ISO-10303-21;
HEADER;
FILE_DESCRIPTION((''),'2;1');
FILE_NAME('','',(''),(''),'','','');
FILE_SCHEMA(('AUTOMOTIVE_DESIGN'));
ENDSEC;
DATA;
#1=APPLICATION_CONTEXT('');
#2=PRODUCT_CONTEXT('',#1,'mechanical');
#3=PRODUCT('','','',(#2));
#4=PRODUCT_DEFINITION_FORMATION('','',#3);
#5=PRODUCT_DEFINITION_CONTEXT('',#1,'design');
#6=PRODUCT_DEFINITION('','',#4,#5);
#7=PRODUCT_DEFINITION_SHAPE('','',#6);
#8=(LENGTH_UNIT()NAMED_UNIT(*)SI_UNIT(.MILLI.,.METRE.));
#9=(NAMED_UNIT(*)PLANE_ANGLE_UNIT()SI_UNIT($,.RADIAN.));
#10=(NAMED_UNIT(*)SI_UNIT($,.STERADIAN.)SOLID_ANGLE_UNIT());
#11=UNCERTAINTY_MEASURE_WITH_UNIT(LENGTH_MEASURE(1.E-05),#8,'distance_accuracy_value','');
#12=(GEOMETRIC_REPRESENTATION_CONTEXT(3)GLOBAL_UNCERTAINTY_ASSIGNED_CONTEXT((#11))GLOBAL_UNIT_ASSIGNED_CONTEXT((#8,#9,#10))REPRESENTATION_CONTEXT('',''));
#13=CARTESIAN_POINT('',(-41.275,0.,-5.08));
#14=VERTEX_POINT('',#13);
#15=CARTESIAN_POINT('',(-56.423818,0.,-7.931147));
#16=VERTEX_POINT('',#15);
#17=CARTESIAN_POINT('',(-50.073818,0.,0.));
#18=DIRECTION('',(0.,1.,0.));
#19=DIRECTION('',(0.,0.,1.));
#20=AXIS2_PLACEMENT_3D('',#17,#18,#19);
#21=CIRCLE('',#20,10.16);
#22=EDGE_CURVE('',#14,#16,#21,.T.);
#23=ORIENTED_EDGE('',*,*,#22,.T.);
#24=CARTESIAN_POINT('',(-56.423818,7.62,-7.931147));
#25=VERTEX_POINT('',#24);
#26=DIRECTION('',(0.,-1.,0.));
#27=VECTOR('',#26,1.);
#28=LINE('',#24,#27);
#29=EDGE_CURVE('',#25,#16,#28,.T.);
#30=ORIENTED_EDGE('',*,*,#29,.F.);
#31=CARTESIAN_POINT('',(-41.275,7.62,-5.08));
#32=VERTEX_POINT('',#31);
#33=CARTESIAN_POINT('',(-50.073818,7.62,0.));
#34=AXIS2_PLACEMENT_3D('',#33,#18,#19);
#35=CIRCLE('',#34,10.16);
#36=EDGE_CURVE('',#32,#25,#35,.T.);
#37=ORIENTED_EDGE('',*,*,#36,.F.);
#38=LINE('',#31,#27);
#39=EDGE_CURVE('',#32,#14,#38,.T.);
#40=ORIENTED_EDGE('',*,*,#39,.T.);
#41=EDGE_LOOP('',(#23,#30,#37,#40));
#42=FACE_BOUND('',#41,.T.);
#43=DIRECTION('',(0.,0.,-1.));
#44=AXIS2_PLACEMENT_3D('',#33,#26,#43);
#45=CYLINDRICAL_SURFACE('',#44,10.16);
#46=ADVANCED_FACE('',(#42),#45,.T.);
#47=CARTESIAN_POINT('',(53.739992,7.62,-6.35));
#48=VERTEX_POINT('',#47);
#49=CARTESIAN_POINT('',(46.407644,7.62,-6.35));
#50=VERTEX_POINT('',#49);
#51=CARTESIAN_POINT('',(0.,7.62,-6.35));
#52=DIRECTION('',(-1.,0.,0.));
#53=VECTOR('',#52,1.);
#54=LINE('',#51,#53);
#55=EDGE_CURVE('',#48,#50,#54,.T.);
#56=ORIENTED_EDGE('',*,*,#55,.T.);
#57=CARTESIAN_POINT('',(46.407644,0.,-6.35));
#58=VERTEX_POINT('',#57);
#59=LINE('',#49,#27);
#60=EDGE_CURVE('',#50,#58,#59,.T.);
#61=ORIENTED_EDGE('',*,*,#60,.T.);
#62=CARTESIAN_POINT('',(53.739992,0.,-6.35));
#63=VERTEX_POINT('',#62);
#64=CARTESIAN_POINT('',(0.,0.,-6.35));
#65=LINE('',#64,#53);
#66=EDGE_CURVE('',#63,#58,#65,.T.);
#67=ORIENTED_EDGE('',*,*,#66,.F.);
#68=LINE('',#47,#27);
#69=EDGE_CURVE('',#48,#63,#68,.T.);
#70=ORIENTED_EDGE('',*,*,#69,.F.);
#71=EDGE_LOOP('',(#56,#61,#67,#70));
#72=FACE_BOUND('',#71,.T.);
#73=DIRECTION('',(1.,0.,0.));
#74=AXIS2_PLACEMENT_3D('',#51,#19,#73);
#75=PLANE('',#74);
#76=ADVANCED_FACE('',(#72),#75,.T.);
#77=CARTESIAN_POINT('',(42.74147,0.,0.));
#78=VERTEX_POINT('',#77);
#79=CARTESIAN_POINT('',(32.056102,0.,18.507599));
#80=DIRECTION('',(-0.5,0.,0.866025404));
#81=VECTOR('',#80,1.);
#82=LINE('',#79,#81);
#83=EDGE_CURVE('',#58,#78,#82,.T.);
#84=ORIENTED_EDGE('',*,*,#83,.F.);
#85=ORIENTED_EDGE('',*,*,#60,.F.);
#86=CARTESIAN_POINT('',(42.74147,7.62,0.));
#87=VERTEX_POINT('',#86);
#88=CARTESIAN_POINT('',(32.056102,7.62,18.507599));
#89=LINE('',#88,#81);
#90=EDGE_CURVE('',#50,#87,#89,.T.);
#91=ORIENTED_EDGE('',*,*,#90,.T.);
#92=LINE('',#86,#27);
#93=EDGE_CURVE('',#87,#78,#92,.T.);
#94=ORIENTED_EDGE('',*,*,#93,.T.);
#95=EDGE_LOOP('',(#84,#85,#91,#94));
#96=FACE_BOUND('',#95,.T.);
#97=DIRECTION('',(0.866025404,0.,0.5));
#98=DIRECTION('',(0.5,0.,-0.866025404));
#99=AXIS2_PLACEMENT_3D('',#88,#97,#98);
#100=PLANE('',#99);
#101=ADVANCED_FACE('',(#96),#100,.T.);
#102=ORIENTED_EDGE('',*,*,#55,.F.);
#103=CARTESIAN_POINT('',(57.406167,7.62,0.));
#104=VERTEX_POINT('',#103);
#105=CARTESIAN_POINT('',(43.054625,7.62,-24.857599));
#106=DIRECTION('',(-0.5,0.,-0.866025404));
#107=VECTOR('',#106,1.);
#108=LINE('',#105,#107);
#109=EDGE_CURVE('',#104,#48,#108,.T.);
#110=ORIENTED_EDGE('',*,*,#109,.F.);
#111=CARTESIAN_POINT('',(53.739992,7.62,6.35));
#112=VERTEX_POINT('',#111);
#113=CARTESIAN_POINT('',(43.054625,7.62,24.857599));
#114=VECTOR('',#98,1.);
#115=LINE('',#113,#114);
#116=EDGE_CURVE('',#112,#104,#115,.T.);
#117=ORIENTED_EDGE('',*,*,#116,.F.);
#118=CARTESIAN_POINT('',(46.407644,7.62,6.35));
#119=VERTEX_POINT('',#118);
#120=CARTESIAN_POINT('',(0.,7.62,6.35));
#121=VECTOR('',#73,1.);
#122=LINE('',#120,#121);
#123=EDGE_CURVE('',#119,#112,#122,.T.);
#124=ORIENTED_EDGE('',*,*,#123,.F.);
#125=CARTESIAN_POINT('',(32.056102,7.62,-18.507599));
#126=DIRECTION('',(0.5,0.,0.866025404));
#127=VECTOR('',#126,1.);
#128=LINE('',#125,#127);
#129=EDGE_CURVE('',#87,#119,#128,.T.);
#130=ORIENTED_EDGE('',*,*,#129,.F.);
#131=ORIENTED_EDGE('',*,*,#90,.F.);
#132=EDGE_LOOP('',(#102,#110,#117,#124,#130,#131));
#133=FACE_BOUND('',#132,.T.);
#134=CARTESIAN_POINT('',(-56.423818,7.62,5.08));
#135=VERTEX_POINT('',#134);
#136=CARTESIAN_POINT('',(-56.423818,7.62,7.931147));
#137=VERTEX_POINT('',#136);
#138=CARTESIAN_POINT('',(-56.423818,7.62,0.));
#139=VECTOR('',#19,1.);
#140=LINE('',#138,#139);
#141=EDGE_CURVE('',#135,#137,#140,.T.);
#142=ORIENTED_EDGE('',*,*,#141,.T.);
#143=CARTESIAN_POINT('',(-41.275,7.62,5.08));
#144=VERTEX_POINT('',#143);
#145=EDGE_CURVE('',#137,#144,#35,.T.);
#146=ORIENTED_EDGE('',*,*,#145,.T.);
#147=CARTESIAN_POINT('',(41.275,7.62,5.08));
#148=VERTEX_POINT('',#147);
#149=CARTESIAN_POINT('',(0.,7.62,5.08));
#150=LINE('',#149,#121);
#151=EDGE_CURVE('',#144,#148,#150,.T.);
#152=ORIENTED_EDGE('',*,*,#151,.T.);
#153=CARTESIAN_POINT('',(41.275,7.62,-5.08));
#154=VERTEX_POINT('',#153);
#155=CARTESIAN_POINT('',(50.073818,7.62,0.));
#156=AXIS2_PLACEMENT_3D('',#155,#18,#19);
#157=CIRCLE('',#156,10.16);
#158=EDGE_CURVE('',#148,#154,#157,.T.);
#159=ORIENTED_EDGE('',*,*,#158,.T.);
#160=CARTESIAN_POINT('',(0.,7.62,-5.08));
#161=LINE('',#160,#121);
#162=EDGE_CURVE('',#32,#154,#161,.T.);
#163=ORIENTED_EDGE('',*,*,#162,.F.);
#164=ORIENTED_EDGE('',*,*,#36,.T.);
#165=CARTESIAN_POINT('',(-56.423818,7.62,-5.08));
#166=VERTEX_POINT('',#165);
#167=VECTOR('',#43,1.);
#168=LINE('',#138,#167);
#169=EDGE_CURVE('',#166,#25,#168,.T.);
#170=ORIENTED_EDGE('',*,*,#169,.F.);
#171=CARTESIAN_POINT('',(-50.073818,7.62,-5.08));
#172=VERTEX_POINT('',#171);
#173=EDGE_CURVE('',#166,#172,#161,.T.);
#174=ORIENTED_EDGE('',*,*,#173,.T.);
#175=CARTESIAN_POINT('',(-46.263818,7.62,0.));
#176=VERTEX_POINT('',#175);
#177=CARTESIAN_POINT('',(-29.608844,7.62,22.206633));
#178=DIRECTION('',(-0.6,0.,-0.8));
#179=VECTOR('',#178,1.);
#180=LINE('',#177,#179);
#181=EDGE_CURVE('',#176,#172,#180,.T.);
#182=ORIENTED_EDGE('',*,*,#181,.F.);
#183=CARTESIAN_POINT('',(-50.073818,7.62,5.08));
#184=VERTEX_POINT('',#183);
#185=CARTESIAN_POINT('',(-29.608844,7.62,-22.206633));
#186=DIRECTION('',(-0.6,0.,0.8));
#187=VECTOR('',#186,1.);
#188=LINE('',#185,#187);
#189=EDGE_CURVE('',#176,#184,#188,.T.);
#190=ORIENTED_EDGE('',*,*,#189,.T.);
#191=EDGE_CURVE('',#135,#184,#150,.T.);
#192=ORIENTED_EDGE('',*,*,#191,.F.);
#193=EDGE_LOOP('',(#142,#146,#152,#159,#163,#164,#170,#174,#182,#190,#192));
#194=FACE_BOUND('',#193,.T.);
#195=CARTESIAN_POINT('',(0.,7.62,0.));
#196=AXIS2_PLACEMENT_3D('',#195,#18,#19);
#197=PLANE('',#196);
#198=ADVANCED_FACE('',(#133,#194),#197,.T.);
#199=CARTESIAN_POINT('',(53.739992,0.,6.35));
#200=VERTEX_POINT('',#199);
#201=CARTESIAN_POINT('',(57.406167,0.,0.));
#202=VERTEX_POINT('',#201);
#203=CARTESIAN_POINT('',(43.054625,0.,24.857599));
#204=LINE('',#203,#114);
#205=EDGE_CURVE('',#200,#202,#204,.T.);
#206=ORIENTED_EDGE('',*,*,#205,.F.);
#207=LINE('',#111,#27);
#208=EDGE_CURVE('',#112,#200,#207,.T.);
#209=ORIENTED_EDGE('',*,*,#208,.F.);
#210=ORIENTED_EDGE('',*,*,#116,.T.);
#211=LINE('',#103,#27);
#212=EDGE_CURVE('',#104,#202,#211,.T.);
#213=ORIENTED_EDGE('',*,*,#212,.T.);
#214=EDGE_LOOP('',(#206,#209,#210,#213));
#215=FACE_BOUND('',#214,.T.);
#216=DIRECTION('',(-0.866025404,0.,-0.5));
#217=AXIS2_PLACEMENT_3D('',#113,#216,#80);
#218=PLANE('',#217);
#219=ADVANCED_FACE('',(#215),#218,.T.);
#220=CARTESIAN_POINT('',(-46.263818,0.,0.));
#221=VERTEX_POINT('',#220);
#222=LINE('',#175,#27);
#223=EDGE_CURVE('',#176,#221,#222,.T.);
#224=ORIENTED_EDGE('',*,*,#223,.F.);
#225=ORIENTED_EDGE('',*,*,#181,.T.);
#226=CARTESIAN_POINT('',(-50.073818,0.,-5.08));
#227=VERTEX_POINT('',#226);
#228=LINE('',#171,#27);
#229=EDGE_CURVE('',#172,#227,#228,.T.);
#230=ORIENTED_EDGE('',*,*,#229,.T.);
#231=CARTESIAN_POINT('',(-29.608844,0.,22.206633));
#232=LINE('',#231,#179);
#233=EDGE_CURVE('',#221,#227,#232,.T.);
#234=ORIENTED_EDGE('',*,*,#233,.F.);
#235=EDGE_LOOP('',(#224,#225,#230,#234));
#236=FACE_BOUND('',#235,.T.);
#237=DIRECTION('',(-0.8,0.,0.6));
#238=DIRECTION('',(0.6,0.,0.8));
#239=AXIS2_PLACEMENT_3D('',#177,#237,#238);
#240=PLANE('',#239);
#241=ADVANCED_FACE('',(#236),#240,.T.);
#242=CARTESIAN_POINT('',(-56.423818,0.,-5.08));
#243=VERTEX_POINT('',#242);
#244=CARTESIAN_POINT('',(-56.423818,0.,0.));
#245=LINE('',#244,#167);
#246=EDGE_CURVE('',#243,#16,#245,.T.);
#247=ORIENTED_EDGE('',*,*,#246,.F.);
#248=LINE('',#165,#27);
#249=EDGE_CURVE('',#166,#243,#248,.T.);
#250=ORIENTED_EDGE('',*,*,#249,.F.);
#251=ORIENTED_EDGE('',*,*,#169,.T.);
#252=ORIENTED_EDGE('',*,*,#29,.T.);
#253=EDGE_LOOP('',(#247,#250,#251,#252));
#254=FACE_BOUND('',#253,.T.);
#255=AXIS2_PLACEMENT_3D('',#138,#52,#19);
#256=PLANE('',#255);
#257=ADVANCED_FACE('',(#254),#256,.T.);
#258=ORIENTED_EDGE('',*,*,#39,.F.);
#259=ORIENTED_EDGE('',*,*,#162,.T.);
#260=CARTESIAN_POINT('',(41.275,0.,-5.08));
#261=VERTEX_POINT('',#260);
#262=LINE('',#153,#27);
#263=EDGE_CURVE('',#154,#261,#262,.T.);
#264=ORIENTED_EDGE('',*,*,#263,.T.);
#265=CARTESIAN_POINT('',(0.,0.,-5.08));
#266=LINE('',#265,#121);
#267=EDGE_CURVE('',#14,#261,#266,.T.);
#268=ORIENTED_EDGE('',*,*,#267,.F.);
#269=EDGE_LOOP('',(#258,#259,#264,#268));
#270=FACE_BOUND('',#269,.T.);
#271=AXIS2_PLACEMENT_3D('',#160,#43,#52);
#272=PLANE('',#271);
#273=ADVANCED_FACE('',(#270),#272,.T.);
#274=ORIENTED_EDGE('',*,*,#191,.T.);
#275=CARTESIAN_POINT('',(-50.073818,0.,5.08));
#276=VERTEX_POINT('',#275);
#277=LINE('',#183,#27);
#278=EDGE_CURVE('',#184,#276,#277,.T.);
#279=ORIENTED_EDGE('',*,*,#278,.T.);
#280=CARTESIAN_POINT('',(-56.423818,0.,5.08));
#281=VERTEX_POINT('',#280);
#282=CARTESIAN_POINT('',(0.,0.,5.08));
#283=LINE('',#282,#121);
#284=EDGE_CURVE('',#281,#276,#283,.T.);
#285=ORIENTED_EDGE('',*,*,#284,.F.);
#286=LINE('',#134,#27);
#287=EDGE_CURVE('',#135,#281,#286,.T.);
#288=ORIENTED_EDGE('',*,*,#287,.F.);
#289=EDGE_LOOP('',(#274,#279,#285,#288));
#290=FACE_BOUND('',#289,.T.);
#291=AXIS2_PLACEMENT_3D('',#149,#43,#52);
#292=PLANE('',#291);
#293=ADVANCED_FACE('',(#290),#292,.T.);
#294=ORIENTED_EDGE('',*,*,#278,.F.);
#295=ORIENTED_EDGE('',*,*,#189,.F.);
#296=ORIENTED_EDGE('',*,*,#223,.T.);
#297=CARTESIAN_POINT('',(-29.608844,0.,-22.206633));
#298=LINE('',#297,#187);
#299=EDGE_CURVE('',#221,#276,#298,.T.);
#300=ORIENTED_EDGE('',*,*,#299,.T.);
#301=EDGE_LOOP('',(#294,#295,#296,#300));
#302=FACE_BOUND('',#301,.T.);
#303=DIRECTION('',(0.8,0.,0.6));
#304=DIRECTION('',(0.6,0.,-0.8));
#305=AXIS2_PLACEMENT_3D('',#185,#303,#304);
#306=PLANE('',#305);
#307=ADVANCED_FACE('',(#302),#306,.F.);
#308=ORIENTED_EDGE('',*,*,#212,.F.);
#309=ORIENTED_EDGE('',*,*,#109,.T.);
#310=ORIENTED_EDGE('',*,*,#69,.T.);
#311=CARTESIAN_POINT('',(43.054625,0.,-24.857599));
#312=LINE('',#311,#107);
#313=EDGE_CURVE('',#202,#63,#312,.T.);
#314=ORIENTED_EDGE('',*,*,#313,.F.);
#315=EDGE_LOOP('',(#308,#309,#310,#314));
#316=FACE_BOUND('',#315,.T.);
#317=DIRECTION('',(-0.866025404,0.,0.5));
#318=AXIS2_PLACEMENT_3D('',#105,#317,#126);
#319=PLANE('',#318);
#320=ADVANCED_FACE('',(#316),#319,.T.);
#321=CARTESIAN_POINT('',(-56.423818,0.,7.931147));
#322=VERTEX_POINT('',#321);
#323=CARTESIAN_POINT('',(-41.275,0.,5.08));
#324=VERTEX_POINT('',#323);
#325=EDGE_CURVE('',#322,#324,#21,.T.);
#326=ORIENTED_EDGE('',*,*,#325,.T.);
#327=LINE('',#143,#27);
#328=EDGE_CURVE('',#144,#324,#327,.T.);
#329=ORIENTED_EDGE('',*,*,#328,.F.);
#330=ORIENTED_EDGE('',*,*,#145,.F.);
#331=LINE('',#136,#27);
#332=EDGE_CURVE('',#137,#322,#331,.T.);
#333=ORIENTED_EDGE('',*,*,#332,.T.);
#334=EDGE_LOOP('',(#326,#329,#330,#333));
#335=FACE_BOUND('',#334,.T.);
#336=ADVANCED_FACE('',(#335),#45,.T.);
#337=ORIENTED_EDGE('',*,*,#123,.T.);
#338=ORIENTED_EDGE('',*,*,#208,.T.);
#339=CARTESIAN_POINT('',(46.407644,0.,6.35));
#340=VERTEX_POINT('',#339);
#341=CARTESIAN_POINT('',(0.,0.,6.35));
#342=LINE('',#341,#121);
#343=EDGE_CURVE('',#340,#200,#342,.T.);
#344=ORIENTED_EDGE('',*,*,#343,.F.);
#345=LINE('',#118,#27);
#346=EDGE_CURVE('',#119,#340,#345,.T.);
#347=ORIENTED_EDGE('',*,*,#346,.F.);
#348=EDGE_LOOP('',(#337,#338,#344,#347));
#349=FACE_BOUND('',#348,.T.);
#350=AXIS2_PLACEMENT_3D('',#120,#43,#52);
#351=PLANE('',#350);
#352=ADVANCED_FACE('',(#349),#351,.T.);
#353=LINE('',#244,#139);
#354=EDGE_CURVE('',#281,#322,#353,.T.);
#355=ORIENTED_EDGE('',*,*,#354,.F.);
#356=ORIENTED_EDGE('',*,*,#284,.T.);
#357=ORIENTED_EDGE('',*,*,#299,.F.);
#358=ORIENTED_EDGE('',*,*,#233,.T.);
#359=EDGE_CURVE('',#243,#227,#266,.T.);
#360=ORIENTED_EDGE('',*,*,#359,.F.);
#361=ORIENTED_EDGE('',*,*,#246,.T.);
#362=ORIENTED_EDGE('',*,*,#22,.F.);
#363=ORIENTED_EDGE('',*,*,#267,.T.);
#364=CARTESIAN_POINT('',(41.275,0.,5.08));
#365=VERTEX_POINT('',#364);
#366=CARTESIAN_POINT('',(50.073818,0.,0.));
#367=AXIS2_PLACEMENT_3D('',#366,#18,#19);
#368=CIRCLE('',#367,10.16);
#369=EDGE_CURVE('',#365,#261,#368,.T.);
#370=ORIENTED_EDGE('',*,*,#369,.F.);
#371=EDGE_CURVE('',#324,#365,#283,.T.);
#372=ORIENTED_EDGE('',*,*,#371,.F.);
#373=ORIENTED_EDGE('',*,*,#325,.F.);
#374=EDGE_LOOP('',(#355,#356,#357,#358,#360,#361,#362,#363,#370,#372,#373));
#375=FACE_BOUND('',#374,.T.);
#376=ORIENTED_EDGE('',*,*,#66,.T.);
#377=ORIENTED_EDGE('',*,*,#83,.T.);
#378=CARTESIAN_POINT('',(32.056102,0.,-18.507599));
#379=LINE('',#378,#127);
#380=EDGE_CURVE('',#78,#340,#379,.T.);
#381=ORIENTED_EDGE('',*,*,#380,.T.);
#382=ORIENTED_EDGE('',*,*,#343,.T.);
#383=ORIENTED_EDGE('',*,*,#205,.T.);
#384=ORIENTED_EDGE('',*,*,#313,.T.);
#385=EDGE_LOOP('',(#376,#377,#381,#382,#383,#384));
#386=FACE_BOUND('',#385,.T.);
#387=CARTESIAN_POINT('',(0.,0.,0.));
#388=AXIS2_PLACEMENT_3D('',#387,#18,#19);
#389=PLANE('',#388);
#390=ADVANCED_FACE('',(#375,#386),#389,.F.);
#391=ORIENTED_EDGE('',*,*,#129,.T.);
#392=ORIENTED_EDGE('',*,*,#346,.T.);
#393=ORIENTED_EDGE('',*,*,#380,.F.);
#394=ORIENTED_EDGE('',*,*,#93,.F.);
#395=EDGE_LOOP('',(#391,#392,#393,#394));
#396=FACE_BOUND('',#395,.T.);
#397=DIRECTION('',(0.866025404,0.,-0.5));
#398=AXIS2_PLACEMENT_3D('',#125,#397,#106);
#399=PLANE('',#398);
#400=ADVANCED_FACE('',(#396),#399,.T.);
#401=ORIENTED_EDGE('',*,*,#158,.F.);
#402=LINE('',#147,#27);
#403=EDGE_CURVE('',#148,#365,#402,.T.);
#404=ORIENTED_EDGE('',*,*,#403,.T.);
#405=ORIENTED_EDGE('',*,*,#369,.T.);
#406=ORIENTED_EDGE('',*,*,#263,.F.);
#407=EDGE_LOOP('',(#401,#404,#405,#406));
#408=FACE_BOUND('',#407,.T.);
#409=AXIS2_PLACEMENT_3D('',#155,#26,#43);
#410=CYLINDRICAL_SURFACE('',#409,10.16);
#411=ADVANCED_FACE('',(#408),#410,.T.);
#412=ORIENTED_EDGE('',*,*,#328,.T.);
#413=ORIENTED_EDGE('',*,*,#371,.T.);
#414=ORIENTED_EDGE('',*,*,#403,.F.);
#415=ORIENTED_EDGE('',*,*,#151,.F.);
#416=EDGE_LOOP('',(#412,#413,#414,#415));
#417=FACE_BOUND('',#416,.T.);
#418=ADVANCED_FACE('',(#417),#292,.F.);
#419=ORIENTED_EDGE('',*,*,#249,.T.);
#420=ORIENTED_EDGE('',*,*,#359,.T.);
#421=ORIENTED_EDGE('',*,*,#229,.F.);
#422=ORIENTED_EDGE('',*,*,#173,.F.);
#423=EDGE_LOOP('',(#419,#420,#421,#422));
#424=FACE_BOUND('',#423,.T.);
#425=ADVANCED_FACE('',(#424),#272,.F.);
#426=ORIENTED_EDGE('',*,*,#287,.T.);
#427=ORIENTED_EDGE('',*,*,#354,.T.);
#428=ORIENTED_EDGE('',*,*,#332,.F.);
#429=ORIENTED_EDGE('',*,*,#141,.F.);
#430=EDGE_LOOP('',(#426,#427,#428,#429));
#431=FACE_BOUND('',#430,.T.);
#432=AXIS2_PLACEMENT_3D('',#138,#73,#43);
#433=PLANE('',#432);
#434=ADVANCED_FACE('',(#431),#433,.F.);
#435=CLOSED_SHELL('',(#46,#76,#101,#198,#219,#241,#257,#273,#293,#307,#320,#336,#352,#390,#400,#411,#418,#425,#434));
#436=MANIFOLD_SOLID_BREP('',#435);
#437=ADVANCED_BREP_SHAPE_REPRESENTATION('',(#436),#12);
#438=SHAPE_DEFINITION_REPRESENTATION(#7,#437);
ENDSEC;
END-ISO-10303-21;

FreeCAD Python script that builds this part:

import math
import FreeCAD as App
import Part
import Sketcher
Q = App.Units.Quantity


def add_polygon(sketch, points):
    """Adds a closed chain of lines whose ends are joined by coincident constraints."""
    first, n = sketch.GeometryCount, len(points)
    for a, b in zip(points, points[1:] + points[:1]):
        sketch.addGeometry(Part.LineSegment(App.Vector(*a, 0), App.Vector(*b, 0)), False)
    for i in range(n):
        sketch.addConstraint(Sketcher.Constraint("Coincident", first + i, 2, first + (i + 1) % n, 1))

doc = App.newDocument("Part")
body = doc.addObject("PartDesign::Body", "Body")

# Sketch on XZ plane
sketch1 = body.newObject("Sketcher::SketchObject", "Sketch")
sketch1.AttachmentSupport = (doc.getObject("XZ_Plane"), [""])
sketch1.MapMode = "FlatFace"
sketch1.addGeometry(Part.LineSegment(App.Vector(41.3, -5.1, 0), App.Vector(-41.3, -5.1, 0)), False)  # 0
sketch1.addGeometry(Part.ArcOfCircle(Part.Circle(App.Vector(-50.1, 0, 0), App.Vector(0, 0, 1), 10.2), math.radians(-129), math.radians(-30)), False)  # 1
sketch1.addGeometry(Part.LineSegment(App.Vector(-56.4, -7.9, 0), App.Vector(-56.4, -5.1, 0)), False)  # 2
sketch1.addGeometry(Part.LineSegment(App.Vector(-56.4, -5.1, 0), App.Vector(-50.1, -5.1, 0)), False)  # 3
sketch1.addGeometry(Part.LineSegment(App.Vector(-50.1, -5.1, 0), App.Vector(-46.3, 0, 0)), False)  # 4
sketch1.addGeometry(Part.LineSegment(App.Vector(-46.3, 0, 0), App.Vector(-50.1, 5.1, 0)), False)  # 5
sketch1.addGeometry(Part.LineSegment(App.Vector(-50.1, 5.1, 0), App.Vector(-56.4, 5.1, 0)), False)  # 6
sketch1.addGeometry(Part.LineSegment(App.Vector(-56.4, 5.1, 0), App.Vector(-56.4, 7.9, 0)), False)  # 7
sketch1.addGeometry(Part.ArcOfCircle(Part.Circle(App.Vector(-50.1, 0, 0), App.Vector(0, 0, 1), 10.2), math.radians(30), math.radians(129)), False)  # 8
sketch1.addGeometry(Part.LineSegment(App.Vector(-41.3, 5.1, 0), App.Vector(41.3, 5.1, 0)), False)  # 9
sketch1.addGeometry(Part.ArcOfCircle(Part.Circle(App.Vector(50.1, 0, 0), App.Vector(0, 0, 1), 10.2), math.radians(-150), math.radians(150)), False)  # 10
add_polygon(sketch1, [(53.7, 6.3), (46.4, 6.3), (42.7, 0), (46.4, -6.3), (53.7, -6.3), (57.4, 0)])  # lines 11-16
sketch1.addConstraint(Sketcher.Constraint("Coincident", 0, 2, 1, 2))
sketch1.addConstraint(Sketcher.Constraint("Coincident", 1, 1, 2, 1))
sketch1.addConstraint(Sketcher.Constraint("Coincident", 2, 2, 3, 1))
sketch1.addConstraint(Sketcher.Constraint("Coincident", 3, 2, 4, 1))
sketch1.addConstraint(Sketcher.Constraint("Coincident", 4, 2, 5, 1))
sketch1.addConstraint(Sketcher.Constraint("Coincident", 5, 2, 6, 1))
sketch1.addConstraint(Sketcher.Constraint("Coincident", 6, 2, 7, 1))
sketch1.addConstraint(Sketcher.Constraint("Coincident", 7, 2, 8, 2))
sketch1.addConstraint(Sketcher.Constraint("Coincident", 8, 1, 9, 1))
sketch1.addConstraint(Sketcher.Constraint("Coincident", 9, 2, 10, 2))
sketch1.addConstraint(Sketcher.Constraint("Coincident", 10, 1, 0, 1))
sketch1.addConstraint(Sketcher.Constraint("Horizontal", 0))
sketch1.addConstraint(Sketcher.Constraint("Vertical", 2))
sketch1.addConstraint(Sketcher.Constraint("Horizontal", 3))
sketch1.addConstraint(Sketcher.Constraint("Horizontal", 6))
sketch1.addConstraint(Sketcher.Constraint("Vertical", 7))
sketch1.addConstraint(Sketcher.Constraint("Horizontal", 9))
sketch1.addConstraint(Sketcher.Constraint("Horizontal", 11))
sketch1.addConstraint(Sketcher.Constraint("Horizontal", 14))
sketch1.addConstraint(Sketcher.Constraint("Coincident", 8, 3, 1, 3))
sketch1.addConstraint(Sketcher.Constraint("Equal", 1, 8))
sketch1.addConstraint(Sketcher.Constraint("Equal", 8, 10))
sketch1.addConstraint(Sketcher.Constraint("Symmetric", 1, 3, 10, 3, -1, 1))
sketch1.addConstraint(Sketcher.Constraint("Symmetric", 3, 2, 5, 2, -1))
sketch1.addConstraint(Sketcher.Constraint("Symmetric", 1, 1, 7, 2, -1))
sketch1.addConstraint(Sketcher.Constraint("Symmetric", 11, 2, 13, 2, -1))
sketch1.addConstraint(Sketcher.Constraint("PointOnObject", 4, 2, -1))
sketch1.addConstraint(Sketcher.Constraint("PointOnObject", 12, 2, -1))
sketch1.addConstraint(Sketcher.Constraint("PointOnObject", 15, 2, -1))
sketch1.addConstraint(Sketcher.Constraint("Parallel", 12, 15))
sketch1.addConstraint(Sketcher.Constraint("Parallel", 13, 16))
sketch1.addConstraint(Sketcher.Constraint("Horizontal", 0, 2, 2, 2))
sketch1.addConstraint(Sketcher.Constraint("Horizontal", 6, 2, 8, 1))
sketch1.addConstraint(Sketcher.Constraint("Vertical", 8, 3, 3, 2))
sketch1.addConstraint(Sketcher.Constraint("Radius", 1, Q("0.4 in")))
sketch1.addConstraint(Sketcher.Constraint("Angle", 12, Q("-120 deg")))
sketch1.addConstraint(Sketcher.Constraint("DistanceX", 0, 2, 0, 1, Q("3.25 in")))
sketch1.addConstraint(Sketcher.Constraint("DistanceX", 3, 1, 3, 2, Q("0.25 in")))
sketch1.addConstraint(Sketcher.Constraint("DistanceY", 0, 2, -1, 1, Q("0.2 in")))
sketch1.addConstraint(Sketcher.Constraint("DistanceX", 2, 2, 4, 2, Q("0.4 in")))
sketch1.addConstraint(Sketcher.Constraint("DistanceY", 13, 2, 11, 2, Q("0.5 in")))
sketch1.addConstraint(Sketcher.Constraint("DistanceX", 11, 2, 11, 1, Q("7.332348 mm")))
sketch1.addConstraint(Sketcher.Constraint("DistanceX", -1, 1, 12, 2, Q("42.74147 mm")))
pad1 = body.newObject("PartDesign::Pad", "Pad")
pad1.Profile = sketch1
pad1.Length = Q("0.3 in")
pad1.Reversed = True

doc.recompute()
